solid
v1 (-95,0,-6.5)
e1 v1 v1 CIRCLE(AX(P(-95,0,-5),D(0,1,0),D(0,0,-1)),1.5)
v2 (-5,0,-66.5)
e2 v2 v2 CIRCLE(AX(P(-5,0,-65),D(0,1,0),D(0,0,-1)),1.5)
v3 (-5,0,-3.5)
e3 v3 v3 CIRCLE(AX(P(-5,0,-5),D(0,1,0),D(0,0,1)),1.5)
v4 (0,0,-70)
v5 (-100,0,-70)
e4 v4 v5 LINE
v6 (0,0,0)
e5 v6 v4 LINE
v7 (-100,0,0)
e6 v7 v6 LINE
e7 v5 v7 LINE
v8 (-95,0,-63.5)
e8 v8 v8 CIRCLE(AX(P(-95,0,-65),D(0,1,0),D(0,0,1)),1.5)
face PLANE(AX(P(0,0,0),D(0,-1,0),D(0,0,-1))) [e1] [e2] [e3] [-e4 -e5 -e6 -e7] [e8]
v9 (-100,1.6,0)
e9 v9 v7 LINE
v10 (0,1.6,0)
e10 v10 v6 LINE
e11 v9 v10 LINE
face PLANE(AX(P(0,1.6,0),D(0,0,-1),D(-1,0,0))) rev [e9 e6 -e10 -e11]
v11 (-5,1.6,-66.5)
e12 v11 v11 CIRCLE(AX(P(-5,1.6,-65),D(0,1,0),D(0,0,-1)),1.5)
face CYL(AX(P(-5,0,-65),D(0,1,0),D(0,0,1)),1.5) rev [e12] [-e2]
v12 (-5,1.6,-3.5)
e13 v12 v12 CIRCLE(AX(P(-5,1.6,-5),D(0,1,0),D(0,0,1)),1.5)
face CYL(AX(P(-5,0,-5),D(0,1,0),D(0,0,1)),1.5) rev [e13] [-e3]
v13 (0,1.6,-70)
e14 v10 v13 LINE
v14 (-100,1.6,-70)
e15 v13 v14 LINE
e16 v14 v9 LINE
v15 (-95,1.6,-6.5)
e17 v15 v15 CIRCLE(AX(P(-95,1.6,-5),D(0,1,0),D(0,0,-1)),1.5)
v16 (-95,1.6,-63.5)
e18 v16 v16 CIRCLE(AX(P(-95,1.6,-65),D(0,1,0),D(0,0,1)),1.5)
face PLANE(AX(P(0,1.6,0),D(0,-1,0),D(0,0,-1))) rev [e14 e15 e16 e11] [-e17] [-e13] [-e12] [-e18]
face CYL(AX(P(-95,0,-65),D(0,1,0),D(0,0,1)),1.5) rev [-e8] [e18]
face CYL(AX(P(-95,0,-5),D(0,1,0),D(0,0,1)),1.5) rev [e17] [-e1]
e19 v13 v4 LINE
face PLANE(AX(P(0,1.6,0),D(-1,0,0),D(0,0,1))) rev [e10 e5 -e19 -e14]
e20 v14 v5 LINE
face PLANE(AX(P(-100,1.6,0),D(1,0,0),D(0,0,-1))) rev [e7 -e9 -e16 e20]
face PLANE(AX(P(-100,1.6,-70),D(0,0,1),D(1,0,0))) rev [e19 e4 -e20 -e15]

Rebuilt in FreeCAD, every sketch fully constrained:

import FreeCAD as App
import Part
import Sketcher
from FreeCAD import Vector
Q = App.Units.Quantity


def add_polygon(sketch, points):
    """Adds a closed chain of lines whose ends are joined by coincident constraints."""
    first, n = sketch.GeometryCount, len(points)
    for a, b in zip(points, points[1:] + points[:1]):
        sketch.addGeometry(Part.LineSegment(App.Vector(*a, 0), App.Vector(*b, 0)), False)
    for i in range(n):
        sketch.addConstraint(Sketcher.Constraint("Coincident", first + i, 2, first + (i + 1) % n, 1))

doc = App.newDocument("Part")
body = doc.addObject("PartDesign::Body", "Body")

# Sketch on XZ plane
sketch1 = doc.addObject("Sketcher::SketchObject", "Sketch")
body.addObject(sketch1)
sketch1.AttachmentSupport = (doc.XZ_Plane, [""])
sketch1.MapMode = "FlatFace"
add_polygon(sketch1, [(-100, -70), (-100, 0), (0, 0), (0, -70)])  # lines 0-3
sketch1.addConstraint(Sketcher.Constraint("Vertical", 0))
sketch1.addConstraint(Sketcher.Constraint("Horizontal", 1))
sketch1.addConstraint(Sketcher.Constraint("Vertical", 2))
sketch1.addConstraint(Sketcher.Constraint("Horizontal", 3))
sketch1.addConstraint(Sketcher.Constraint("Coincident", 1, 2, -1, 1))
sketch1.addConstraint(Sketcher.Constraint("DistanceX", 1, 1, 1, 2, Q("100 mm")))
sketch1.addConstraint(Sketcher.Constraint("DistanceY", 0, 1, 0, 2, Q("70 mm")))
pad1 = doc.addObject("PartDesign::Pad", "Pad")
body.addObject(pad1)
pad1.Profile = sketch1
pad1.Length = 1.6
pad1.Reversed = True

# Sketch on XZ plane
sketch2 = doc.addObject("Sketcher::SketchObject", "Sketch001")
body.addObject(sketch2)
sketch2.AttachmentSupport = (doc.XZ_Plane, [""])
sketch2.MapMode = "FlatFace"
sketch2.AttachmentOffset = App.Placement(Vector(0, 0, -1.6), App.Rotation())
sketch2.addGeometry(Part.Circle(Vector(-95, -65, 0), Vector(0, 0, 1), 1.5), False)
sketch2.addGeometry(Part.Circle(Vector(-95, -5, 0), Vector(0, 0, 1), 1.5), False)
sketch2.addGeometry(Part.Circle(Vector(-5, -5, 0), Vector(0, 0, 1), 1.5), False)
sketch2.addGeometry(Part.Circle(Vector(-5, -65, 0), Vector(0, 0, 1), 1.5), False)
sketch2.addConstraint(Sketcher.Constraint("Equal", 0, 1))
sketch2.addConstraint(Sketcher.Constraint("Equal", 1, 2))
sketch2.addConstraint(Sketcher.Constraint("Equal", 2, 3))
sketch2.addConstraint(Sketcher.Constraint("Horizontal", 1, 3, 2, 3))
sketch2.addConstraint(Sketcher.Constraint("Horizontal", 0, 3, 3, 3))
sketch2.addConstraint(Sketcher.Constraint("Vertical", 0, 3, 1, 3))
sketch2.addConstraint(Sketcher.Constraint("Vertical", 2, 3, 3, 3))
sketch2.addConstraint(Sketcher.Constraint("Diameter", 0, Q("3 mm")))
sketch2.addConstraint(Sketcher.Constraint("DistanceX", 0, 3, -1, 1, Q("95 mm")))
sketch2.addConstraint(Sketcher.Constraint("DistanceY", 0, 3, -1, 1, Q("65 mm")))
sketch2.addConstraint(Sketcher.Constraint("DistanceY", 1, 3, -1, 1, Q("5 mm")))
sketch2.addConstraint(Sketcher.Constraint("DistanceX", 2, 3, -1, 1, Q("5 mm")))
pocket1 = doc.addObject("PartDesign::Pocket", "Pocket")
body.addObject(pocket1)
pocket1.Profile = sketch2
pocket1.Type = "ThroughAll"
pocket1.Reversed = True

doc.recompute()
